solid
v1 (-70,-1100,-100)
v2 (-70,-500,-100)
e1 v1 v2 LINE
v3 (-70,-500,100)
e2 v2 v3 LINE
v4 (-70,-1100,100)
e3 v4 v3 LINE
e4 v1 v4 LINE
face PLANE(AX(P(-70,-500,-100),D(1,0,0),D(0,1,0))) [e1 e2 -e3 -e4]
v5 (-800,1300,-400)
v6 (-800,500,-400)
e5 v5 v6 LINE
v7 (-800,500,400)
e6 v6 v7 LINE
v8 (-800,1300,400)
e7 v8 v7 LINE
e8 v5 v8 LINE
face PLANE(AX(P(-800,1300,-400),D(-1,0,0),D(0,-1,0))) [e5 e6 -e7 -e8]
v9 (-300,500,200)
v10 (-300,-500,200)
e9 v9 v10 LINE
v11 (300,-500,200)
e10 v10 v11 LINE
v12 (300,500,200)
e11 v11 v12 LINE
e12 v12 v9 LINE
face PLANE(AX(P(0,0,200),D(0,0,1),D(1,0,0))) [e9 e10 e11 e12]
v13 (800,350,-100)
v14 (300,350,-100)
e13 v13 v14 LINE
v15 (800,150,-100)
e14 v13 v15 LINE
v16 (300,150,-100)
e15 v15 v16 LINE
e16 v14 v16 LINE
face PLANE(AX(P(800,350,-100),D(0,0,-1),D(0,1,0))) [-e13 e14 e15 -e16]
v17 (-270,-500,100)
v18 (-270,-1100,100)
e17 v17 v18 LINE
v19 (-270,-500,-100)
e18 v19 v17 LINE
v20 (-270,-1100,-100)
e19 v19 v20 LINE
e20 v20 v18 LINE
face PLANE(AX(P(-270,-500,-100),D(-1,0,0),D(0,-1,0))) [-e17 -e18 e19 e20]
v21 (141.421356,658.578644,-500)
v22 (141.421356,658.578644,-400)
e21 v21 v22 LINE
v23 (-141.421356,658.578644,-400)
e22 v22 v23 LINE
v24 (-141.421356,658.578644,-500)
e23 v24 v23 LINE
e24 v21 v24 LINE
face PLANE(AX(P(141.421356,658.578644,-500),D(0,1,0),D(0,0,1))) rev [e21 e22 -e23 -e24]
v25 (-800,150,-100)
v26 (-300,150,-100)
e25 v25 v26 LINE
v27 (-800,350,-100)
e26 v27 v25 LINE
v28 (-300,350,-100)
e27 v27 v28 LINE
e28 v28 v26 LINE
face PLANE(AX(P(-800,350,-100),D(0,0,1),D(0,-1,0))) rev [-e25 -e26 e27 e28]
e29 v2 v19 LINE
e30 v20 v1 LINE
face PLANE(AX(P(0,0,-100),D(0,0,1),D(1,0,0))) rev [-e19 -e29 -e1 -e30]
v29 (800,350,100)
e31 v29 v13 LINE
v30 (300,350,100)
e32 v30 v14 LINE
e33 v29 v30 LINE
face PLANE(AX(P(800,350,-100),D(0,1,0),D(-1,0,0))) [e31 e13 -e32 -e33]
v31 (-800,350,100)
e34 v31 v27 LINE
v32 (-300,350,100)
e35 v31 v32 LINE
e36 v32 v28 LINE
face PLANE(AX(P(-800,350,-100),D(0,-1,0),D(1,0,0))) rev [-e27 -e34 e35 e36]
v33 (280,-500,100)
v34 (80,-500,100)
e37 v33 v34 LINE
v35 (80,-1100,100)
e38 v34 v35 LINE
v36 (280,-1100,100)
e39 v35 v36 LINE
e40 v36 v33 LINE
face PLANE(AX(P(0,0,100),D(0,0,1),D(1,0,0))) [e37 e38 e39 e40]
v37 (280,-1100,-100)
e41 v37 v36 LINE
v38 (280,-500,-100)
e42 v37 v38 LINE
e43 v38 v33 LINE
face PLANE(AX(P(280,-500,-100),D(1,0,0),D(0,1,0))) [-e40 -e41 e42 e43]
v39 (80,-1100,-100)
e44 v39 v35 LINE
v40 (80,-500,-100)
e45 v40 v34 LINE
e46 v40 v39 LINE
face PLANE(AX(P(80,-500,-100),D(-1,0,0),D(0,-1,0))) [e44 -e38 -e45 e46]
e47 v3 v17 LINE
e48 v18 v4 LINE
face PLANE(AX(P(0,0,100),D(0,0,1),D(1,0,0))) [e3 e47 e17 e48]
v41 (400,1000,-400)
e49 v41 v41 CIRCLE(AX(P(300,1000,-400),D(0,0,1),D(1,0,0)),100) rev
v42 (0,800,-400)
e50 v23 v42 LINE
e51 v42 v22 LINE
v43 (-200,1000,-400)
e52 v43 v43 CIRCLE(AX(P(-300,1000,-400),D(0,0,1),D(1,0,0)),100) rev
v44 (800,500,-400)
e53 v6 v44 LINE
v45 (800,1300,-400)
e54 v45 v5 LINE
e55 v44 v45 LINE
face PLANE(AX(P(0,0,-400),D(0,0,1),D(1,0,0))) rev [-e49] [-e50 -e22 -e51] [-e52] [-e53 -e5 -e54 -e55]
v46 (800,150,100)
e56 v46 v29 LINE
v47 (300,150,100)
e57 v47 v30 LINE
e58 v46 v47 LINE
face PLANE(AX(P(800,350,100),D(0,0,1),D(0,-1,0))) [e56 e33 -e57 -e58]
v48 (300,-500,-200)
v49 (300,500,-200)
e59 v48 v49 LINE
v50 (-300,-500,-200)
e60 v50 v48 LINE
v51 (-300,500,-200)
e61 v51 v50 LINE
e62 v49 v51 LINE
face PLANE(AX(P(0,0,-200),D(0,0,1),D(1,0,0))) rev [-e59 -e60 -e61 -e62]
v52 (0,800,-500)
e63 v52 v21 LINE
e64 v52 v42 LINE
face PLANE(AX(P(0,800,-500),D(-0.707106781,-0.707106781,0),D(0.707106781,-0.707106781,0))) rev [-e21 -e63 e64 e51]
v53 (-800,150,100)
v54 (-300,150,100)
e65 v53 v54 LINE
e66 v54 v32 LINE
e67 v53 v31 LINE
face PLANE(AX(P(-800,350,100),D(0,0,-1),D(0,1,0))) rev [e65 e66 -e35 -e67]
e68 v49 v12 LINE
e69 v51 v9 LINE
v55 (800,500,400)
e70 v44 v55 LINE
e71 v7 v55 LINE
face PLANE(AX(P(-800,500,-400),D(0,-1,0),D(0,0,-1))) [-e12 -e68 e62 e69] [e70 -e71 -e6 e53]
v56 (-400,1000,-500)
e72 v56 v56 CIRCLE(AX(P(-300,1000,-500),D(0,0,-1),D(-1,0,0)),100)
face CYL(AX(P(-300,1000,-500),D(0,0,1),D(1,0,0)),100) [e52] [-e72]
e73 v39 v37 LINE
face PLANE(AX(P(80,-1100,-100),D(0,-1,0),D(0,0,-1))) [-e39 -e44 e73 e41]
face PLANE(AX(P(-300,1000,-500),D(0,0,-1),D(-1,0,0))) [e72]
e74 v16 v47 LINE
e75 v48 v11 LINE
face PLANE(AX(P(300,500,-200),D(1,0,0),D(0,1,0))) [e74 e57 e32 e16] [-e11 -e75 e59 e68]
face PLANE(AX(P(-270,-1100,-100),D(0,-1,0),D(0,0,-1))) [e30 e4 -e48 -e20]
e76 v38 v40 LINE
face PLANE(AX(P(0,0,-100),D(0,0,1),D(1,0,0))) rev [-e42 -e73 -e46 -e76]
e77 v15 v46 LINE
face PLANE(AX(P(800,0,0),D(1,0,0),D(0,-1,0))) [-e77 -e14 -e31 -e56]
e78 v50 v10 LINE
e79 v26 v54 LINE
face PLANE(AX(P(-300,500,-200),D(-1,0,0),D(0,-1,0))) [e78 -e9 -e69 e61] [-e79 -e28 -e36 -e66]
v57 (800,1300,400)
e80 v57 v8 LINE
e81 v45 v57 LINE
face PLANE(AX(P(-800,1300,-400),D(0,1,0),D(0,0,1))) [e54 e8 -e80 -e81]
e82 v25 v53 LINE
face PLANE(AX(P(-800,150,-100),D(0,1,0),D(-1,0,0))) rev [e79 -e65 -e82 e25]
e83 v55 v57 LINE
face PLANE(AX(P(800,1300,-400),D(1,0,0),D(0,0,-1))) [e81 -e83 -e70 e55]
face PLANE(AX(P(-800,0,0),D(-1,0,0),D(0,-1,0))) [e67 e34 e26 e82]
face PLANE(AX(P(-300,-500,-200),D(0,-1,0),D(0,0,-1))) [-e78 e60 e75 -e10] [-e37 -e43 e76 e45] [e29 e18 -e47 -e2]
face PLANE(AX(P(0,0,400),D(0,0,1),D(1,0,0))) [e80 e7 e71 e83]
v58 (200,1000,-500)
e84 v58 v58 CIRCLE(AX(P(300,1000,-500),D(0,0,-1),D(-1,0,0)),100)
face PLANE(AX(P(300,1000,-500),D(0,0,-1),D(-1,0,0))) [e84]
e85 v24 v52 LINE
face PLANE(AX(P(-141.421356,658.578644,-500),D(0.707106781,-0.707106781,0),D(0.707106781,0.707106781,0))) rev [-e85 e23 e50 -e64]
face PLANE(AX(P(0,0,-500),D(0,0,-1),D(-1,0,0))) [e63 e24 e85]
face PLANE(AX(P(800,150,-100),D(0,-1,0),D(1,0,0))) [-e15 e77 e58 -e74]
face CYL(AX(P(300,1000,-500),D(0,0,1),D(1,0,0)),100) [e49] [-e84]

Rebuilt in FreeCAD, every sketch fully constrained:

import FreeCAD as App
import Part
import Sketcher
from FreeCAD import Vector
Q = App.Units.Quantity

doc = App.newDocument("Part")
params = doc.addObject("Spreadsheet::Sheet", "Params")
for row, (alias, value) in enumerate([
    ("sketch1_width", "1600 mm"),
    ("sketch1_height", "800 mm"),
    ("pad1_length", "400 mm"),
    ("pad1_length2", "400 mm"),
    ("sketch2_width", "600 mm"),
    ("sketch2_height", "1000 mm"),
    ("pad2_length", "200 mm"),
    ("pad2_length2", "200 mm"),
    ("sketch3_width", "200 mm"),
    ("sketch3_height", "600 mm"),
    ("pad3_length", "100 mm"),
    ("pad3_length2", "100 mm"),
    ("sketch4_width", "200 mm"),
    ("pad4_length", "500 mm"),
    ("sketch5_diameter", "200 mm"),
    ("sketch5_length", "200 mm"),
    ("pad5_length", "100 mm"),
], start=1):
    params.set(f"A{row}", alias)
    params.set(f"B{row}", "=" + value)
    params.setAlias(f"B{row}", alias)

body = doc.addObject("PartDesign::Body", "Body")

sketch1 = body.newObject("Sketcher::SketchObject", "Sketch")
sketch1.AttachmentSupport = (doc.getObject("XY_Plane"), [""])
sketch1.MapMode = "FlatFace"
sketch1.addGeometry([
    Part.LineSegment(Vector(-800, 1300, 0), Vector(-800, 500, 0)),
    Part.LineSegment(Vector(-800, 500, 0), Vector(800, 500, 0)),
    Part.LineSegment(Vector(800, 500, 0), Vector(800, 1300, 0)),
    Part.LineSegment(Vector(800, 1300, 0), Vector(-800, 1300, 0)),
], False)
sketch1.addConstraint([
    Sketcher.Constraint("Coincident", 0, 2, 1, 1),
    Sketcher.Constraint("Coincident", 1, 2, 2, 1),
    Sketcher.Constraint("Coincident", 2, 2, 3, 1),
    Sketcher.Constraint("Coincident", 3, 2, 0, 1),
    Sketcher.Constraint("Vertical", 0),
    Sketcher.Constraint("Horizontal", 1),
    Sketcher.Constraint("Vertical", 2),
    Sketcher.Constraint("Horizontal", 3),
    Sketcher.Constraint("DistanceX", 1, 1, 1, 2, Q("1600 mm")),
    Sketcher.Constraint("DistanceY", 0, 2, 0, 1, Q("800 mm")),
    Sketcher.Constraint("DistanceX", 0, 2, -1, 1, Q("800 mm")),
    Sketcher.Constraint("DistanceY", -1, 1, 0, 2, Q("500 mm")),
])
sketch1.setExpression("Constraints[8]", "Params.sketch1_width")
sketch1.setExpression("Constraints[9]", "Params.sketch1_height")
pad1 = body.newObject("PartDesign::Pad", "Pad")
pad1.Profile = sketch1
pad1.Type = "TwoLengths"
pad1.setExpression("Length", "Params.pad1_length")
pad1.setExpression("Length2", "Params.pad1_length2")

sketch2 = body.newObject("Sketcher::SketchObject", "Sketch001")
sketch2.AttachmentSupport = (doc.getObject("XY_Plane"), [""])
sketch2.MapMode = "FlatFace"
sketch2.addGeometry([
    Part.LineSegment(Vector(-300, 500, 0), Vector(-300, -500, 0)),
    Part.LineSegment(Vector(-300, -500, 0), Vector(300, -500, 0)),
    Part.LineSegment(Vector(300, -500, 0), Vector(300, 500, 0)),
    Part.LineSegment(Vector(300, 500, 0), Vector(-300, 500, 0)),
], False)
sketch2.addConstraint([
    Sketcher.Constraint("Coincident", 0, 2, 1, 1),
    Sketcher.Constraint("Coincident", 1, 2, 2, 1),
    Sketcher.Constraint("Coincident", 2, 2, 3, 1),
    Sketcher.Constraint("Coincident", 3, 2, 0, 1),
    Sketcher.Constraint("Vertical", 0),
    Sketcher.Constraint("Horizontal", 1),
    Sketcher.Constraint("Vertical", 2),
    Sketcher.Constraint("Horizontal", 3),
    Sketcher.Constraint("Symmetric", 0, 2, 2, 2, -1, 1),
    Sketcher.Constraint("DistanceX", 1, 1, 1, 2, Q("600 mm")),
    Sketcher.Constraint("DistanceY", 0, 2, 0, 1, Q("1000 mm")),
])
sketch2.setExpression("Constraints[9]", "Params.sketch2_width")
sketch2.setExpression("Constraints[10]", "Params.sketch2_height")
pad2 = body.newObject("PartDesign::Pad", "Pad001")
pad2.Profile = sketch2
pad2.Type = "TwoLengths"
pad2.setExpression("Length", "Params.pad2_length")
pad2.setExpression("Length2", "Params.pad2_length2")

sketch3 = body.newObject("Sketcher::SketchObject", "Sketch002")
sketch3.AttachmentSupport = (doc.getObject("XY_Plane"), [""])
sketch3.MapMode = "FlatFace"
sketch3.addGeometry([
    Part.LineSegment(Vector(-270, -500, 0), Vector(-270, -1100, 0)),
    Part.LineSegment(Vector(-270, -1100, 0), Vector(-70, -1100, 0)),
    Part.LineSegment(Vector(-70, -1100, 0), Vector(-70, -500, 0)),
    Part.LineSegment(Vector(-70, -500, 0), Vector(-270, -500, 0)),
    Part.LineSegment(Vector(80, -500, 0), Vector(80, -1100, 0)),
    Part.LineSegment(Vector(80, -1100, 0), Vector(280, -1100, 0)),
    Part.LineSegment(Vector(280, -1100, 0), Vector(280, -500, 0)),
    Part.LineSegment(Vector(280, -500, 0), Vector(80, -500, 0)),
], False)
sketch3.addConstraint([
    Sketcher.Constraint("Coincident", 0, 2, 1, 1),
    Sketcher.Constraint("Coincident", 1, 2, 2, 1),
    Sketcher.Constraint("Coincident", 2, 2, 3, 1),
    Sketcher.Constraint("Coincident", 3, 2, 0, 1),
    Sketcher.Constraint("Coincident", 4, 2, 5, 1),
    Sketcher.Constraint("Coincident", 5, 2, 6, 1),
    Sketcher.Constraint("Coincident", 6, 2, 7, 1),
    Sketcher.Constraint("Coincident", 7, 2, 4, 1),
    Sketcher.Constraint("Vertical", 0),
    Sketcher.Constraint("Horizontal", 1),
    Sketcher.Constraint("Vertical", 2),
    Sketcher.Constraint("Horizontal", 3),
    Sketcher.Constraint("Vertical", 4),
    Sketcher.Constraint("Horizontal", 5),
    Sketcher.Constraint("Vertical", 6),
    Sketcher.Constraint("Horizontal", 7),
    Sketcher.Constraint("Horizontal", 1, 2, 4, 2),
    Sketcher.Constraint("Horizontal", 3, 2, 6, 2),
    Sketcher.Constraint("Equal", 3, 5),
    Sketcher.Constraint("DistanceX", 1, 1, 1, 2, Q("200 mm")),
    Sketcher.Constraint("DistanceY", 0, 2, 0, 1, Q("600 mm")),
    Sketcher.Constraint("DistanceX", 0, 2, -1, 1, Q("270 mm")),
    Sketcher.Constraint("DistanceY", 0, 2, -1, 1, Q("1100 mm")),
    Sketcher.Constraint("DistanceX", -1, 1, 4, 2, Q("80 mm")),
])
sketch3.setExpression("Constraints[19]", "Params.sketch3_width")
sketch3.setExpression("Constraints[20]", "Params.sketch3_height")
pad3 = body.newObject("PartDesign::Pad", "Pad002")
pad3.Profile = sketch3
pad3.Type = "TwoLengths"
pad3.setExpression("Length", "Params.pad3_length")
pad3.setExpression("Length2", "Params.pad3_length2")

sketch4 = body.newObject("Sketcher::SketchObject", "Sketch003")
sketch4.AttachmentSupport = (doc.getObject("YZ_Plane"), [""])
sketch4.MapMode = "FlatFace"
sketch4.AttachmentOffset = App.Placement(Vector(0, 0, -300), App.Rotation())
sketch4.addGeometry([
    Part.LineSegment(Vector(350, -100, 0), Vector(150, -100, 0)),
    Part.LineSegment(Vector(150, -100, 0), Vector(150, 100, 0)),
    Part.LineSegment(Vector(150, 100, 0), Vector(350, 100, 0)),
    Part.LineSegment(Vector(350, 100, 0), Vector(350, -100, 0)),
], False)
sketch4.addConstraint([
    Sketcher.Constraint("Coincident", 0, 2, 1, 1),
    Sketcher.Constraint("Coincident", 1, 2, 2, 1),
    Sketcher.Constraint("Coincident", 2, 2, 3, 1),
    Sketcher.Constraint("Coincident", 3, 2, 0, 1),
    Sketcher.Constraint("Horizontal", 0),
    Sketcher.Constraint("Vertical", 1),
    Sketcher.Constraint("Horizontal", 2),
    Sketcher.Constraint("Vertical", 3),
    Sketcher.Constraint("Equal", 2, 1),
    Sketcher.Constraint("DistanceX", 0, 2, 0, 1, Q("200 mm")),
    Sketcher.Constraint("DistanceX", -1, 1, 0, 2, Q("150 mm")),
    Sketcher.Constraint("DistanceY", 0, 2, -1, 1, Q("100 mm")),
])
sketch4.setExpression("Constraints[9]", "Params.sketch4_width")
pad4 = body.newObject("PartDesign::Pad", "Pad003")
pad4.Profile = sketch4
pad4.setExpression("Length", "Params.pad4_length")
pad4.Reversed = True
doc.recompute()

mirrored = body.newObject("PartDesign::Mirrored", "Mirrored")
mirrored.Originals = [pad4]
mirrored.MirrorPlane = (doc.getObject("YZ_Plane"), [""])
body.Tip = mirrored

sketch5 = body.newObject("Sketcher::SketchObject", "Sketch004")
sketch5.AttachmentSupport = (doc.getObject("XY_Plane"), [""])
sketch5.MapMode = "FlatFace"
sketch5.AttachmentOffset = App.Placement(Vector(0, 0, -400), App.Rotation())
sketch5.addGeometry([
    Part.Circle(Vector(300, 1000, 0), Vector(0, 0, 1), 100),
    Part.Circle(Vector(-300, 1000, 0), Vector(0, 0, 1), 100),
    Part.LineSegment(Vector(0, 800, 0), Vector(141, 659, 0)),
    Part.LineSegment(Vector(141, 659, 0), Vector(-141, 659, 0)),
    Part.LineSegment(Vector(-141, 659, 0), Vector(0, 800, 0)),
], False)
sketch5.addConstraint([
    Sketcher.Constraint("Coincident", 2, 2, 3, 1),
    Sketcher.Constraint("Coincident", 3, 2, 4, 1),
    Sketcher.Constraint("Coincident", 4, 2, 2, 1),
    Sketcher.Constraint("Horizontal", 3),
    Sketcher.Constraint("Equal", 0, 1),
    Sketcher.Constraint("Symmetric", 0, 3, 1, 3, -2),
    Sketcher.Constraint("PointOnObject", 4, 2, -2),
    Sketcher.Constraint("Perpendicular", 2, 4),
    Sketcher.Constraint("Equal", 2, 4),
    Sketcher.Constraint("Diameter", 0, Q("200 mm")),
    Sketcher.Constraint("Distance", 2, Q("200 mm")),
    Sketcher.Constraint("DistanceX", -1, 1, 0, 3, Q("300 mm")),
    Sketcher.Constraint("DistanceY", -1, 1, 0, 3, Q("1000 mm")),
    Sketcher.Constraint("DistanceY", -1, 1, 4, 2, Q("800 mm")),
])
sketch5.setExpression("Constraints[9]", "Params.sketch5_diameter")
sketch5.setExpression("Constraints[10]", "Params.sketch5_length")
pad5 = body.newObject("PartDesign::Pad", "Pad004")
pad5.Profile = sketch5
pad5.setExpression("Length", "Params.pad5_length")
pad5.Reversed = True

doc.recompute()
